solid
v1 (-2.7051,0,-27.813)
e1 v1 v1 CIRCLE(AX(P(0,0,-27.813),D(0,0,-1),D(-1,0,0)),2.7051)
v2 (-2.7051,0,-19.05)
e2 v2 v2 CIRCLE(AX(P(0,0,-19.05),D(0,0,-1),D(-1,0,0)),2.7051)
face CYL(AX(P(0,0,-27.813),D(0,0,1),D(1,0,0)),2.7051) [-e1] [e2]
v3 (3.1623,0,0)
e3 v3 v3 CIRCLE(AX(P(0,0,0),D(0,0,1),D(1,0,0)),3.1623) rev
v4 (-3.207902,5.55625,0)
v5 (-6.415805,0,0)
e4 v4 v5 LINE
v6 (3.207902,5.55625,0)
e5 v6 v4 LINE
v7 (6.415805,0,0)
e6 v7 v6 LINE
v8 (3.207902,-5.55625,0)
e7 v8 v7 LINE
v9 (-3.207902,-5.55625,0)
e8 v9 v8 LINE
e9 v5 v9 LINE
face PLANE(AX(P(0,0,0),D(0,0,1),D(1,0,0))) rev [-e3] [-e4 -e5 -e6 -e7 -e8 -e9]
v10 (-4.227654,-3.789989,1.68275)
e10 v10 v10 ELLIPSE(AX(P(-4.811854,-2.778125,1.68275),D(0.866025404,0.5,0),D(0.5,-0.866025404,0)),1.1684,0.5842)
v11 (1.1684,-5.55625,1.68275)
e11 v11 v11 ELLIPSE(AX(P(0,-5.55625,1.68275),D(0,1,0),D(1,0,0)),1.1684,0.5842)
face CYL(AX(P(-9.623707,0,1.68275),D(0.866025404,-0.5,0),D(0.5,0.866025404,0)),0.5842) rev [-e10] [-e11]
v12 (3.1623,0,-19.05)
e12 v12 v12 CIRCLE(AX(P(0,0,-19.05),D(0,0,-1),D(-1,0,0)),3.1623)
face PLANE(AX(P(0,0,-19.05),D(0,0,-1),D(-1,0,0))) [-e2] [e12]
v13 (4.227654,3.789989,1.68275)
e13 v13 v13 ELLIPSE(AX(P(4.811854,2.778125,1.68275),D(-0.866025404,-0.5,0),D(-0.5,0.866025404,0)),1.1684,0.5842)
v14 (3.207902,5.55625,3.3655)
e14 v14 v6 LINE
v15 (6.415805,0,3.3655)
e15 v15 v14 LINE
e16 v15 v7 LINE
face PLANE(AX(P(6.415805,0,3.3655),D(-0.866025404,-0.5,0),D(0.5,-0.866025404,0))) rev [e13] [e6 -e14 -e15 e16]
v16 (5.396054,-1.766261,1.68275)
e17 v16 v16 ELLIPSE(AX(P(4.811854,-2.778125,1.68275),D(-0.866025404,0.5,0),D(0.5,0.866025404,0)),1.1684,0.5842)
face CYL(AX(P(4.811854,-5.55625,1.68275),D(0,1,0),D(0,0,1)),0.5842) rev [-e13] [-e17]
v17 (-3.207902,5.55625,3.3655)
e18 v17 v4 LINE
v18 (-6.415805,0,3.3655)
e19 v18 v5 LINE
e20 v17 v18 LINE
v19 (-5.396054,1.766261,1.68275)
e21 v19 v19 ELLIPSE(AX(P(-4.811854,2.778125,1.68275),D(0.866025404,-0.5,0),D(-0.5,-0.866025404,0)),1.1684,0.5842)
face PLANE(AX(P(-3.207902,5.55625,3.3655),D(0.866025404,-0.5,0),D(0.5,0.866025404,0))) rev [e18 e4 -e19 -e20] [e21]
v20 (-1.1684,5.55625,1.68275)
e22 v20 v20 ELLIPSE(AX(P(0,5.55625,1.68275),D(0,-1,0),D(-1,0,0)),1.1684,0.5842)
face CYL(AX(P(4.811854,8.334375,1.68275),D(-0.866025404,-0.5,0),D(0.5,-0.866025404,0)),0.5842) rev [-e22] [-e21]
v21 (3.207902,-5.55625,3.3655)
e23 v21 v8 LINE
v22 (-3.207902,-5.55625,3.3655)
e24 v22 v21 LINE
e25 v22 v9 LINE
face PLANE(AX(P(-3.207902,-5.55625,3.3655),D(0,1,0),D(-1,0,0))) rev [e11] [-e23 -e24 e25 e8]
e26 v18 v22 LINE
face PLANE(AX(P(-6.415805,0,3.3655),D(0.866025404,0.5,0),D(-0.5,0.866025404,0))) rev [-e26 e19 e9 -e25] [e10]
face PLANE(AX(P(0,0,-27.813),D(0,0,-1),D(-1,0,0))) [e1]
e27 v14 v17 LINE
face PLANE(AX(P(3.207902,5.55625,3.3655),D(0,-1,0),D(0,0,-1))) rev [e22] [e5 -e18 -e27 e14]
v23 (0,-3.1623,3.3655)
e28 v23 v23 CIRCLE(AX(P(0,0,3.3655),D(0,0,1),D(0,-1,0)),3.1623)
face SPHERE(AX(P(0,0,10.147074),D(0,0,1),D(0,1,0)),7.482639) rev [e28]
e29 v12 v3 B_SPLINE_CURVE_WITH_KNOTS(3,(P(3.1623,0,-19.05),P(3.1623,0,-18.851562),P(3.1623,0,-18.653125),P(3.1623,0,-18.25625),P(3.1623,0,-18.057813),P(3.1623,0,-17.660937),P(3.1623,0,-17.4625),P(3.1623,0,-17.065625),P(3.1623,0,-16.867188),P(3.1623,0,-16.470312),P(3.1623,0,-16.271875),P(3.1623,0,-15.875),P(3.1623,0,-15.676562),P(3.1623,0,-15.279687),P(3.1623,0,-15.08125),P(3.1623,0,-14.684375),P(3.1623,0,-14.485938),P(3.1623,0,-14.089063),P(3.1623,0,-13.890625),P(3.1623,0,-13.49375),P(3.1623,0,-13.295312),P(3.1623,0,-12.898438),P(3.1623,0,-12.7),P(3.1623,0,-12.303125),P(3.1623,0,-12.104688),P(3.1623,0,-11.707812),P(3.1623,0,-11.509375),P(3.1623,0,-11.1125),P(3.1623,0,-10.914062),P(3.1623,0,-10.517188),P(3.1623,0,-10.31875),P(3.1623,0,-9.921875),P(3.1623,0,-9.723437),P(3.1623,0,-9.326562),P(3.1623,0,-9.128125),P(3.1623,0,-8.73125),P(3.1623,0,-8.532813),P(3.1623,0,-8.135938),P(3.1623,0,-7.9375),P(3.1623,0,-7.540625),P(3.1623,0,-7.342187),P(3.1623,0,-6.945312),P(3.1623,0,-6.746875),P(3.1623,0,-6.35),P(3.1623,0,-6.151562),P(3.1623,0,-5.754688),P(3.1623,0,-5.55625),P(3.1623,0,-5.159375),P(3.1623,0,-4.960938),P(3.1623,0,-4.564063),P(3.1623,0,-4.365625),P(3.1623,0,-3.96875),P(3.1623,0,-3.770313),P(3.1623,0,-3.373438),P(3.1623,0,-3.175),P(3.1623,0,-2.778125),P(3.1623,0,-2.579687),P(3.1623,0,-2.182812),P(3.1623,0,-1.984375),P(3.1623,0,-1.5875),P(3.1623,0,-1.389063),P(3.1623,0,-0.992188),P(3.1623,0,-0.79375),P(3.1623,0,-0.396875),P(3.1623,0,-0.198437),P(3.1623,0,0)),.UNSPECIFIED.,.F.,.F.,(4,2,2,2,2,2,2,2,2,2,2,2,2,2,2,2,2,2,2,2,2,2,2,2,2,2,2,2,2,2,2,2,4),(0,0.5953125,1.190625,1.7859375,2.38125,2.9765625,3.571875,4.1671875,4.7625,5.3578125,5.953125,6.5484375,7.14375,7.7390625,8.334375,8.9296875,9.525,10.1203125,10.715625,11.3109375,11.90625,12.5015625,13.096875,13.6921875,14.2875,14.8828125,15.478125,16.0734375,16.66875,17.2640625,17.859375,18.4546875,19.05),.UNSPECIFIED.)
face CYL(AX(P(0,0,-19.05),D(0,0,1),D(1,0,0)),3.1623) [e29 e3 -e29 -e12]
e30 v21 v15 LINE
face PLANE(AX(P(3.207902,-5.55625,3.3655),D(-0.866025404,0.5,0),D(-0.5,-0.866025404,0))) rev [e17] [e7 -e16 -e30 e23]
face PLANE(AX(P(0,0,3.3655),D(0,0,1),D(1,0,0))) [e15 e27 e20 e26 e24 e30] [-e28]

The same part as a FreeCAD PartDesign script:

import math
import FreeCAD as App
import Part
import Sketcher
from FreeCAD import Vector
Q = App.Units.Quantity


def add_polygon(sketch, points):
    """Adds a closed chain of lines whose ends are joined by coincident constraints."""
    first, n = sketch.GeometryCount, len(points)
    for a, b in zip(points, points[1:] + points[:1]):
        sketch.addGeometry(Part.LineSegment(App.Vector(*a, 0), App.Vector(*b, 0)), False)
    for i in range(n):
        sketch.addConstraint(Sketcher.Constraint("Coincident", first + i, 2, first + (i + 1) % n, 1))

doc = App.newDocument("Part")
body = doc.addObject("PartDesign::Body", "Body")

# Sketch on XY plane
sketch1 = doc.addObject("Sketcher::SketchObject", "Sketch")
body.addObject(sketch1)
sketch1.AttachmentSupport = (doc.XY_Plane, [""])
sketch1.MapMode = "FlatFace"
add_polygon(sketch1, [(3, 6), (-3, 6), (-6, 0), (-3, -6), (3, -6), (6, 0)])  # lines 0-5
sketch1.addConstraint([
    Sketcher.Constraint("Horizontal", 0),
    Sketcher.Constraint("Horizontal", 3),
    Sketcher.Constraint("Symmetric", 0, 2, 3, 2, -1, 1),
    Sketcher.Constraint("Symmetric", 1, 2, 4, 2, -1, 1),
    Sketcher.Constraint("PointOnObject", 1, 2, -1),
    Sketcher.Constraint("Parallel", 2, 5),
    Sketcher.Constraint("Vertical", 0, 2, 2, 2),
    Sketcher.Constraint("Angle", 1, Q("-120 deg")),
    Sketcher.Constraint("DistanceY", -1, 1, 0, 2, Q("0.21875 in")),
    Sketcher.Constraint("DistanceX", 0, 2, 0, 1, 6.415805),
])
pad1 = doc.addObject("PartDesign::Pad", "Pad")
body.addObject(pad1)
pad1.Profile = sketch1
pad1.Length = Q("0.1325 in")

# Sketch on XY plane
sketch2 = doc.addObject("Sketcher::SketchObject", "Sketch001")
body.addObject(sketch2)
sketch2.AttachmentSupport = (doc.XY_Plane, [""])
sketch2.MapMode = "FlatFace"
sketch2.addGeometry(Part.Circle(Vector(0, 0, 0), Vector(0, 0, 1), 3.2), False)
sketch2.addConstraint([
    Sketcher.Constraint("Coincident", 0, 3, -1, 1),
    Sketcher.Constraint("Diameter", 0, Q("0.249 in")),
])
pad2 = doc.addObject("PartDesign::Pad", "Pad001")
body.addObject(pad2)
pad2.Profile = sketch2
pad2.Length = Q("0.75 in")
pad2.Reversed = True

# Sketch on XY plane
sketch3 = doc.addObject("Sketcher::SketchObject", "Sketch002")
body.addObject(sketch3)
sketch3.AttachmentSupport = (doc.XY_Plane, [""])
sketch3.MapMode = "FlatFace"
sketch3.AttachmentOffset = App.Placement(Vector(0, 0, -0.75 * 25.4), App.Rotation())
sketch3.addGeometry(Part.Circle(Vector(0, 0, 0), Vector(0, 0, 1), 2.7), False)
sketch3.addConstraint([
    Sketcher.Constraint("Coincident", 0, 3, -1, 1),
    Sketcher.Constraint("Diameter", 0, Q("0.213 in")),
])
pad3 = doc.addObject("PartDesign::Pad", "Pad002")
body.addObject(pad3)
pad3.Profile = sketch3
pad3.Length = Q("0.345 in")
pad3.Reversed = True

# Sketch on YZ plane
sketch4 = doc.addObject("Sketcher::SketchObject", "Sketch003")
body.addObject(sketch4)
sketch4.AttachmentSupport = (doc.YZ_Plane, [""])
sketch4.MapMode = "FlatFace"
sketch4.addGeometry([
    Part.LineSegment(Vector(3.2, 3.4, 0), Vector(0, 3.4, 0)),
    Part.LineSegment(Vector(0, 3.4, 0), Vector(0, 2.7, 0)),
    Part.ArcOfCircle(Part.Circle(Vector(0, 10.1, 0), Vector(0, 0, 1), 7.5), math.radians(-90), math.radians(-65)),
], False)
sketch4.addConstraint([
    Sketcher.Constraint("Coincident", 0, 2, 1, 1),
    Sketcher.Constraint("Coincident", 1, 2, 2, 1),
    Sketcher.Constraint("Coincident", 2, 2, 0, 1),
    Sketcher.Constraint("Horizontal", 0),
    Sketcher.Constraint("Vertical", 1),
    Sketcher.Constraint("PointOnObject", 2, 3, -2),
    Sketcher.Constraint("PointOnObject", 0, 2, -2),
    Sketcher.Constraint("DistanceX", 0, 2, 0, 1, Q("0.1245 in")),
    Sketcher.Constraint("Radius", 2, 7.482639),
    Sketcher.Constraint("DistanceY", -1, 1, 0, 2, Q("0.1325 in")),
])
groove = doc.addObject("PartDesign::Groove", "Groove")
body.addObject(groove)
groove.Profile = sketch4
groove.ReferenceAxis = (sketch4, ["V_Axis"])
groove.Angle = 360

# Sketch on XZ plane
sketch5 = doc.addObject("Sketcher::SketchObject", "Sketch004")
body.addObject(sketch5)
sketch5.AttachmentSupport = (doc.XZ_Plane, [""])
sketch5.MapMode = "FlatFace"
sketch5.addGeometry(Part.Circle(Vector(4.8, 1.7, 0), Vector(0, 0, 1), 0.6), False)
sketch5.addConstraint([
    Sketcher.Constraint("Diameter", 0, Q("0.046 in")),
    Sketcher.Constraint("DistanceY", -1, 1, 0, 3, 1.68275),
    Sketcher.Constraint("DistanceX", -1, 1, 0, 3, 4.811854),
])
pocket1 = doc.addObject("PartDesign::Pocket", "Pocket")
body.addObject(pocket1)
pocket1.Profile = sketch5
pocket1.Length = 60.158316
pocket1.Midplane = True
doc.recompute()

polarpattern = doc.addObject("PartDesign::PolarPattern", "PolarPattern")
body.addObject(polarpattern)
polarpattern.Originals = [pocket1]
polarpattern.Axis = (doc.Z_Axis, [""])
polarpattern.Angle = 360
polarpattern.Occurrences = 3
body.Tip = polarpattern

doc.recompute()
